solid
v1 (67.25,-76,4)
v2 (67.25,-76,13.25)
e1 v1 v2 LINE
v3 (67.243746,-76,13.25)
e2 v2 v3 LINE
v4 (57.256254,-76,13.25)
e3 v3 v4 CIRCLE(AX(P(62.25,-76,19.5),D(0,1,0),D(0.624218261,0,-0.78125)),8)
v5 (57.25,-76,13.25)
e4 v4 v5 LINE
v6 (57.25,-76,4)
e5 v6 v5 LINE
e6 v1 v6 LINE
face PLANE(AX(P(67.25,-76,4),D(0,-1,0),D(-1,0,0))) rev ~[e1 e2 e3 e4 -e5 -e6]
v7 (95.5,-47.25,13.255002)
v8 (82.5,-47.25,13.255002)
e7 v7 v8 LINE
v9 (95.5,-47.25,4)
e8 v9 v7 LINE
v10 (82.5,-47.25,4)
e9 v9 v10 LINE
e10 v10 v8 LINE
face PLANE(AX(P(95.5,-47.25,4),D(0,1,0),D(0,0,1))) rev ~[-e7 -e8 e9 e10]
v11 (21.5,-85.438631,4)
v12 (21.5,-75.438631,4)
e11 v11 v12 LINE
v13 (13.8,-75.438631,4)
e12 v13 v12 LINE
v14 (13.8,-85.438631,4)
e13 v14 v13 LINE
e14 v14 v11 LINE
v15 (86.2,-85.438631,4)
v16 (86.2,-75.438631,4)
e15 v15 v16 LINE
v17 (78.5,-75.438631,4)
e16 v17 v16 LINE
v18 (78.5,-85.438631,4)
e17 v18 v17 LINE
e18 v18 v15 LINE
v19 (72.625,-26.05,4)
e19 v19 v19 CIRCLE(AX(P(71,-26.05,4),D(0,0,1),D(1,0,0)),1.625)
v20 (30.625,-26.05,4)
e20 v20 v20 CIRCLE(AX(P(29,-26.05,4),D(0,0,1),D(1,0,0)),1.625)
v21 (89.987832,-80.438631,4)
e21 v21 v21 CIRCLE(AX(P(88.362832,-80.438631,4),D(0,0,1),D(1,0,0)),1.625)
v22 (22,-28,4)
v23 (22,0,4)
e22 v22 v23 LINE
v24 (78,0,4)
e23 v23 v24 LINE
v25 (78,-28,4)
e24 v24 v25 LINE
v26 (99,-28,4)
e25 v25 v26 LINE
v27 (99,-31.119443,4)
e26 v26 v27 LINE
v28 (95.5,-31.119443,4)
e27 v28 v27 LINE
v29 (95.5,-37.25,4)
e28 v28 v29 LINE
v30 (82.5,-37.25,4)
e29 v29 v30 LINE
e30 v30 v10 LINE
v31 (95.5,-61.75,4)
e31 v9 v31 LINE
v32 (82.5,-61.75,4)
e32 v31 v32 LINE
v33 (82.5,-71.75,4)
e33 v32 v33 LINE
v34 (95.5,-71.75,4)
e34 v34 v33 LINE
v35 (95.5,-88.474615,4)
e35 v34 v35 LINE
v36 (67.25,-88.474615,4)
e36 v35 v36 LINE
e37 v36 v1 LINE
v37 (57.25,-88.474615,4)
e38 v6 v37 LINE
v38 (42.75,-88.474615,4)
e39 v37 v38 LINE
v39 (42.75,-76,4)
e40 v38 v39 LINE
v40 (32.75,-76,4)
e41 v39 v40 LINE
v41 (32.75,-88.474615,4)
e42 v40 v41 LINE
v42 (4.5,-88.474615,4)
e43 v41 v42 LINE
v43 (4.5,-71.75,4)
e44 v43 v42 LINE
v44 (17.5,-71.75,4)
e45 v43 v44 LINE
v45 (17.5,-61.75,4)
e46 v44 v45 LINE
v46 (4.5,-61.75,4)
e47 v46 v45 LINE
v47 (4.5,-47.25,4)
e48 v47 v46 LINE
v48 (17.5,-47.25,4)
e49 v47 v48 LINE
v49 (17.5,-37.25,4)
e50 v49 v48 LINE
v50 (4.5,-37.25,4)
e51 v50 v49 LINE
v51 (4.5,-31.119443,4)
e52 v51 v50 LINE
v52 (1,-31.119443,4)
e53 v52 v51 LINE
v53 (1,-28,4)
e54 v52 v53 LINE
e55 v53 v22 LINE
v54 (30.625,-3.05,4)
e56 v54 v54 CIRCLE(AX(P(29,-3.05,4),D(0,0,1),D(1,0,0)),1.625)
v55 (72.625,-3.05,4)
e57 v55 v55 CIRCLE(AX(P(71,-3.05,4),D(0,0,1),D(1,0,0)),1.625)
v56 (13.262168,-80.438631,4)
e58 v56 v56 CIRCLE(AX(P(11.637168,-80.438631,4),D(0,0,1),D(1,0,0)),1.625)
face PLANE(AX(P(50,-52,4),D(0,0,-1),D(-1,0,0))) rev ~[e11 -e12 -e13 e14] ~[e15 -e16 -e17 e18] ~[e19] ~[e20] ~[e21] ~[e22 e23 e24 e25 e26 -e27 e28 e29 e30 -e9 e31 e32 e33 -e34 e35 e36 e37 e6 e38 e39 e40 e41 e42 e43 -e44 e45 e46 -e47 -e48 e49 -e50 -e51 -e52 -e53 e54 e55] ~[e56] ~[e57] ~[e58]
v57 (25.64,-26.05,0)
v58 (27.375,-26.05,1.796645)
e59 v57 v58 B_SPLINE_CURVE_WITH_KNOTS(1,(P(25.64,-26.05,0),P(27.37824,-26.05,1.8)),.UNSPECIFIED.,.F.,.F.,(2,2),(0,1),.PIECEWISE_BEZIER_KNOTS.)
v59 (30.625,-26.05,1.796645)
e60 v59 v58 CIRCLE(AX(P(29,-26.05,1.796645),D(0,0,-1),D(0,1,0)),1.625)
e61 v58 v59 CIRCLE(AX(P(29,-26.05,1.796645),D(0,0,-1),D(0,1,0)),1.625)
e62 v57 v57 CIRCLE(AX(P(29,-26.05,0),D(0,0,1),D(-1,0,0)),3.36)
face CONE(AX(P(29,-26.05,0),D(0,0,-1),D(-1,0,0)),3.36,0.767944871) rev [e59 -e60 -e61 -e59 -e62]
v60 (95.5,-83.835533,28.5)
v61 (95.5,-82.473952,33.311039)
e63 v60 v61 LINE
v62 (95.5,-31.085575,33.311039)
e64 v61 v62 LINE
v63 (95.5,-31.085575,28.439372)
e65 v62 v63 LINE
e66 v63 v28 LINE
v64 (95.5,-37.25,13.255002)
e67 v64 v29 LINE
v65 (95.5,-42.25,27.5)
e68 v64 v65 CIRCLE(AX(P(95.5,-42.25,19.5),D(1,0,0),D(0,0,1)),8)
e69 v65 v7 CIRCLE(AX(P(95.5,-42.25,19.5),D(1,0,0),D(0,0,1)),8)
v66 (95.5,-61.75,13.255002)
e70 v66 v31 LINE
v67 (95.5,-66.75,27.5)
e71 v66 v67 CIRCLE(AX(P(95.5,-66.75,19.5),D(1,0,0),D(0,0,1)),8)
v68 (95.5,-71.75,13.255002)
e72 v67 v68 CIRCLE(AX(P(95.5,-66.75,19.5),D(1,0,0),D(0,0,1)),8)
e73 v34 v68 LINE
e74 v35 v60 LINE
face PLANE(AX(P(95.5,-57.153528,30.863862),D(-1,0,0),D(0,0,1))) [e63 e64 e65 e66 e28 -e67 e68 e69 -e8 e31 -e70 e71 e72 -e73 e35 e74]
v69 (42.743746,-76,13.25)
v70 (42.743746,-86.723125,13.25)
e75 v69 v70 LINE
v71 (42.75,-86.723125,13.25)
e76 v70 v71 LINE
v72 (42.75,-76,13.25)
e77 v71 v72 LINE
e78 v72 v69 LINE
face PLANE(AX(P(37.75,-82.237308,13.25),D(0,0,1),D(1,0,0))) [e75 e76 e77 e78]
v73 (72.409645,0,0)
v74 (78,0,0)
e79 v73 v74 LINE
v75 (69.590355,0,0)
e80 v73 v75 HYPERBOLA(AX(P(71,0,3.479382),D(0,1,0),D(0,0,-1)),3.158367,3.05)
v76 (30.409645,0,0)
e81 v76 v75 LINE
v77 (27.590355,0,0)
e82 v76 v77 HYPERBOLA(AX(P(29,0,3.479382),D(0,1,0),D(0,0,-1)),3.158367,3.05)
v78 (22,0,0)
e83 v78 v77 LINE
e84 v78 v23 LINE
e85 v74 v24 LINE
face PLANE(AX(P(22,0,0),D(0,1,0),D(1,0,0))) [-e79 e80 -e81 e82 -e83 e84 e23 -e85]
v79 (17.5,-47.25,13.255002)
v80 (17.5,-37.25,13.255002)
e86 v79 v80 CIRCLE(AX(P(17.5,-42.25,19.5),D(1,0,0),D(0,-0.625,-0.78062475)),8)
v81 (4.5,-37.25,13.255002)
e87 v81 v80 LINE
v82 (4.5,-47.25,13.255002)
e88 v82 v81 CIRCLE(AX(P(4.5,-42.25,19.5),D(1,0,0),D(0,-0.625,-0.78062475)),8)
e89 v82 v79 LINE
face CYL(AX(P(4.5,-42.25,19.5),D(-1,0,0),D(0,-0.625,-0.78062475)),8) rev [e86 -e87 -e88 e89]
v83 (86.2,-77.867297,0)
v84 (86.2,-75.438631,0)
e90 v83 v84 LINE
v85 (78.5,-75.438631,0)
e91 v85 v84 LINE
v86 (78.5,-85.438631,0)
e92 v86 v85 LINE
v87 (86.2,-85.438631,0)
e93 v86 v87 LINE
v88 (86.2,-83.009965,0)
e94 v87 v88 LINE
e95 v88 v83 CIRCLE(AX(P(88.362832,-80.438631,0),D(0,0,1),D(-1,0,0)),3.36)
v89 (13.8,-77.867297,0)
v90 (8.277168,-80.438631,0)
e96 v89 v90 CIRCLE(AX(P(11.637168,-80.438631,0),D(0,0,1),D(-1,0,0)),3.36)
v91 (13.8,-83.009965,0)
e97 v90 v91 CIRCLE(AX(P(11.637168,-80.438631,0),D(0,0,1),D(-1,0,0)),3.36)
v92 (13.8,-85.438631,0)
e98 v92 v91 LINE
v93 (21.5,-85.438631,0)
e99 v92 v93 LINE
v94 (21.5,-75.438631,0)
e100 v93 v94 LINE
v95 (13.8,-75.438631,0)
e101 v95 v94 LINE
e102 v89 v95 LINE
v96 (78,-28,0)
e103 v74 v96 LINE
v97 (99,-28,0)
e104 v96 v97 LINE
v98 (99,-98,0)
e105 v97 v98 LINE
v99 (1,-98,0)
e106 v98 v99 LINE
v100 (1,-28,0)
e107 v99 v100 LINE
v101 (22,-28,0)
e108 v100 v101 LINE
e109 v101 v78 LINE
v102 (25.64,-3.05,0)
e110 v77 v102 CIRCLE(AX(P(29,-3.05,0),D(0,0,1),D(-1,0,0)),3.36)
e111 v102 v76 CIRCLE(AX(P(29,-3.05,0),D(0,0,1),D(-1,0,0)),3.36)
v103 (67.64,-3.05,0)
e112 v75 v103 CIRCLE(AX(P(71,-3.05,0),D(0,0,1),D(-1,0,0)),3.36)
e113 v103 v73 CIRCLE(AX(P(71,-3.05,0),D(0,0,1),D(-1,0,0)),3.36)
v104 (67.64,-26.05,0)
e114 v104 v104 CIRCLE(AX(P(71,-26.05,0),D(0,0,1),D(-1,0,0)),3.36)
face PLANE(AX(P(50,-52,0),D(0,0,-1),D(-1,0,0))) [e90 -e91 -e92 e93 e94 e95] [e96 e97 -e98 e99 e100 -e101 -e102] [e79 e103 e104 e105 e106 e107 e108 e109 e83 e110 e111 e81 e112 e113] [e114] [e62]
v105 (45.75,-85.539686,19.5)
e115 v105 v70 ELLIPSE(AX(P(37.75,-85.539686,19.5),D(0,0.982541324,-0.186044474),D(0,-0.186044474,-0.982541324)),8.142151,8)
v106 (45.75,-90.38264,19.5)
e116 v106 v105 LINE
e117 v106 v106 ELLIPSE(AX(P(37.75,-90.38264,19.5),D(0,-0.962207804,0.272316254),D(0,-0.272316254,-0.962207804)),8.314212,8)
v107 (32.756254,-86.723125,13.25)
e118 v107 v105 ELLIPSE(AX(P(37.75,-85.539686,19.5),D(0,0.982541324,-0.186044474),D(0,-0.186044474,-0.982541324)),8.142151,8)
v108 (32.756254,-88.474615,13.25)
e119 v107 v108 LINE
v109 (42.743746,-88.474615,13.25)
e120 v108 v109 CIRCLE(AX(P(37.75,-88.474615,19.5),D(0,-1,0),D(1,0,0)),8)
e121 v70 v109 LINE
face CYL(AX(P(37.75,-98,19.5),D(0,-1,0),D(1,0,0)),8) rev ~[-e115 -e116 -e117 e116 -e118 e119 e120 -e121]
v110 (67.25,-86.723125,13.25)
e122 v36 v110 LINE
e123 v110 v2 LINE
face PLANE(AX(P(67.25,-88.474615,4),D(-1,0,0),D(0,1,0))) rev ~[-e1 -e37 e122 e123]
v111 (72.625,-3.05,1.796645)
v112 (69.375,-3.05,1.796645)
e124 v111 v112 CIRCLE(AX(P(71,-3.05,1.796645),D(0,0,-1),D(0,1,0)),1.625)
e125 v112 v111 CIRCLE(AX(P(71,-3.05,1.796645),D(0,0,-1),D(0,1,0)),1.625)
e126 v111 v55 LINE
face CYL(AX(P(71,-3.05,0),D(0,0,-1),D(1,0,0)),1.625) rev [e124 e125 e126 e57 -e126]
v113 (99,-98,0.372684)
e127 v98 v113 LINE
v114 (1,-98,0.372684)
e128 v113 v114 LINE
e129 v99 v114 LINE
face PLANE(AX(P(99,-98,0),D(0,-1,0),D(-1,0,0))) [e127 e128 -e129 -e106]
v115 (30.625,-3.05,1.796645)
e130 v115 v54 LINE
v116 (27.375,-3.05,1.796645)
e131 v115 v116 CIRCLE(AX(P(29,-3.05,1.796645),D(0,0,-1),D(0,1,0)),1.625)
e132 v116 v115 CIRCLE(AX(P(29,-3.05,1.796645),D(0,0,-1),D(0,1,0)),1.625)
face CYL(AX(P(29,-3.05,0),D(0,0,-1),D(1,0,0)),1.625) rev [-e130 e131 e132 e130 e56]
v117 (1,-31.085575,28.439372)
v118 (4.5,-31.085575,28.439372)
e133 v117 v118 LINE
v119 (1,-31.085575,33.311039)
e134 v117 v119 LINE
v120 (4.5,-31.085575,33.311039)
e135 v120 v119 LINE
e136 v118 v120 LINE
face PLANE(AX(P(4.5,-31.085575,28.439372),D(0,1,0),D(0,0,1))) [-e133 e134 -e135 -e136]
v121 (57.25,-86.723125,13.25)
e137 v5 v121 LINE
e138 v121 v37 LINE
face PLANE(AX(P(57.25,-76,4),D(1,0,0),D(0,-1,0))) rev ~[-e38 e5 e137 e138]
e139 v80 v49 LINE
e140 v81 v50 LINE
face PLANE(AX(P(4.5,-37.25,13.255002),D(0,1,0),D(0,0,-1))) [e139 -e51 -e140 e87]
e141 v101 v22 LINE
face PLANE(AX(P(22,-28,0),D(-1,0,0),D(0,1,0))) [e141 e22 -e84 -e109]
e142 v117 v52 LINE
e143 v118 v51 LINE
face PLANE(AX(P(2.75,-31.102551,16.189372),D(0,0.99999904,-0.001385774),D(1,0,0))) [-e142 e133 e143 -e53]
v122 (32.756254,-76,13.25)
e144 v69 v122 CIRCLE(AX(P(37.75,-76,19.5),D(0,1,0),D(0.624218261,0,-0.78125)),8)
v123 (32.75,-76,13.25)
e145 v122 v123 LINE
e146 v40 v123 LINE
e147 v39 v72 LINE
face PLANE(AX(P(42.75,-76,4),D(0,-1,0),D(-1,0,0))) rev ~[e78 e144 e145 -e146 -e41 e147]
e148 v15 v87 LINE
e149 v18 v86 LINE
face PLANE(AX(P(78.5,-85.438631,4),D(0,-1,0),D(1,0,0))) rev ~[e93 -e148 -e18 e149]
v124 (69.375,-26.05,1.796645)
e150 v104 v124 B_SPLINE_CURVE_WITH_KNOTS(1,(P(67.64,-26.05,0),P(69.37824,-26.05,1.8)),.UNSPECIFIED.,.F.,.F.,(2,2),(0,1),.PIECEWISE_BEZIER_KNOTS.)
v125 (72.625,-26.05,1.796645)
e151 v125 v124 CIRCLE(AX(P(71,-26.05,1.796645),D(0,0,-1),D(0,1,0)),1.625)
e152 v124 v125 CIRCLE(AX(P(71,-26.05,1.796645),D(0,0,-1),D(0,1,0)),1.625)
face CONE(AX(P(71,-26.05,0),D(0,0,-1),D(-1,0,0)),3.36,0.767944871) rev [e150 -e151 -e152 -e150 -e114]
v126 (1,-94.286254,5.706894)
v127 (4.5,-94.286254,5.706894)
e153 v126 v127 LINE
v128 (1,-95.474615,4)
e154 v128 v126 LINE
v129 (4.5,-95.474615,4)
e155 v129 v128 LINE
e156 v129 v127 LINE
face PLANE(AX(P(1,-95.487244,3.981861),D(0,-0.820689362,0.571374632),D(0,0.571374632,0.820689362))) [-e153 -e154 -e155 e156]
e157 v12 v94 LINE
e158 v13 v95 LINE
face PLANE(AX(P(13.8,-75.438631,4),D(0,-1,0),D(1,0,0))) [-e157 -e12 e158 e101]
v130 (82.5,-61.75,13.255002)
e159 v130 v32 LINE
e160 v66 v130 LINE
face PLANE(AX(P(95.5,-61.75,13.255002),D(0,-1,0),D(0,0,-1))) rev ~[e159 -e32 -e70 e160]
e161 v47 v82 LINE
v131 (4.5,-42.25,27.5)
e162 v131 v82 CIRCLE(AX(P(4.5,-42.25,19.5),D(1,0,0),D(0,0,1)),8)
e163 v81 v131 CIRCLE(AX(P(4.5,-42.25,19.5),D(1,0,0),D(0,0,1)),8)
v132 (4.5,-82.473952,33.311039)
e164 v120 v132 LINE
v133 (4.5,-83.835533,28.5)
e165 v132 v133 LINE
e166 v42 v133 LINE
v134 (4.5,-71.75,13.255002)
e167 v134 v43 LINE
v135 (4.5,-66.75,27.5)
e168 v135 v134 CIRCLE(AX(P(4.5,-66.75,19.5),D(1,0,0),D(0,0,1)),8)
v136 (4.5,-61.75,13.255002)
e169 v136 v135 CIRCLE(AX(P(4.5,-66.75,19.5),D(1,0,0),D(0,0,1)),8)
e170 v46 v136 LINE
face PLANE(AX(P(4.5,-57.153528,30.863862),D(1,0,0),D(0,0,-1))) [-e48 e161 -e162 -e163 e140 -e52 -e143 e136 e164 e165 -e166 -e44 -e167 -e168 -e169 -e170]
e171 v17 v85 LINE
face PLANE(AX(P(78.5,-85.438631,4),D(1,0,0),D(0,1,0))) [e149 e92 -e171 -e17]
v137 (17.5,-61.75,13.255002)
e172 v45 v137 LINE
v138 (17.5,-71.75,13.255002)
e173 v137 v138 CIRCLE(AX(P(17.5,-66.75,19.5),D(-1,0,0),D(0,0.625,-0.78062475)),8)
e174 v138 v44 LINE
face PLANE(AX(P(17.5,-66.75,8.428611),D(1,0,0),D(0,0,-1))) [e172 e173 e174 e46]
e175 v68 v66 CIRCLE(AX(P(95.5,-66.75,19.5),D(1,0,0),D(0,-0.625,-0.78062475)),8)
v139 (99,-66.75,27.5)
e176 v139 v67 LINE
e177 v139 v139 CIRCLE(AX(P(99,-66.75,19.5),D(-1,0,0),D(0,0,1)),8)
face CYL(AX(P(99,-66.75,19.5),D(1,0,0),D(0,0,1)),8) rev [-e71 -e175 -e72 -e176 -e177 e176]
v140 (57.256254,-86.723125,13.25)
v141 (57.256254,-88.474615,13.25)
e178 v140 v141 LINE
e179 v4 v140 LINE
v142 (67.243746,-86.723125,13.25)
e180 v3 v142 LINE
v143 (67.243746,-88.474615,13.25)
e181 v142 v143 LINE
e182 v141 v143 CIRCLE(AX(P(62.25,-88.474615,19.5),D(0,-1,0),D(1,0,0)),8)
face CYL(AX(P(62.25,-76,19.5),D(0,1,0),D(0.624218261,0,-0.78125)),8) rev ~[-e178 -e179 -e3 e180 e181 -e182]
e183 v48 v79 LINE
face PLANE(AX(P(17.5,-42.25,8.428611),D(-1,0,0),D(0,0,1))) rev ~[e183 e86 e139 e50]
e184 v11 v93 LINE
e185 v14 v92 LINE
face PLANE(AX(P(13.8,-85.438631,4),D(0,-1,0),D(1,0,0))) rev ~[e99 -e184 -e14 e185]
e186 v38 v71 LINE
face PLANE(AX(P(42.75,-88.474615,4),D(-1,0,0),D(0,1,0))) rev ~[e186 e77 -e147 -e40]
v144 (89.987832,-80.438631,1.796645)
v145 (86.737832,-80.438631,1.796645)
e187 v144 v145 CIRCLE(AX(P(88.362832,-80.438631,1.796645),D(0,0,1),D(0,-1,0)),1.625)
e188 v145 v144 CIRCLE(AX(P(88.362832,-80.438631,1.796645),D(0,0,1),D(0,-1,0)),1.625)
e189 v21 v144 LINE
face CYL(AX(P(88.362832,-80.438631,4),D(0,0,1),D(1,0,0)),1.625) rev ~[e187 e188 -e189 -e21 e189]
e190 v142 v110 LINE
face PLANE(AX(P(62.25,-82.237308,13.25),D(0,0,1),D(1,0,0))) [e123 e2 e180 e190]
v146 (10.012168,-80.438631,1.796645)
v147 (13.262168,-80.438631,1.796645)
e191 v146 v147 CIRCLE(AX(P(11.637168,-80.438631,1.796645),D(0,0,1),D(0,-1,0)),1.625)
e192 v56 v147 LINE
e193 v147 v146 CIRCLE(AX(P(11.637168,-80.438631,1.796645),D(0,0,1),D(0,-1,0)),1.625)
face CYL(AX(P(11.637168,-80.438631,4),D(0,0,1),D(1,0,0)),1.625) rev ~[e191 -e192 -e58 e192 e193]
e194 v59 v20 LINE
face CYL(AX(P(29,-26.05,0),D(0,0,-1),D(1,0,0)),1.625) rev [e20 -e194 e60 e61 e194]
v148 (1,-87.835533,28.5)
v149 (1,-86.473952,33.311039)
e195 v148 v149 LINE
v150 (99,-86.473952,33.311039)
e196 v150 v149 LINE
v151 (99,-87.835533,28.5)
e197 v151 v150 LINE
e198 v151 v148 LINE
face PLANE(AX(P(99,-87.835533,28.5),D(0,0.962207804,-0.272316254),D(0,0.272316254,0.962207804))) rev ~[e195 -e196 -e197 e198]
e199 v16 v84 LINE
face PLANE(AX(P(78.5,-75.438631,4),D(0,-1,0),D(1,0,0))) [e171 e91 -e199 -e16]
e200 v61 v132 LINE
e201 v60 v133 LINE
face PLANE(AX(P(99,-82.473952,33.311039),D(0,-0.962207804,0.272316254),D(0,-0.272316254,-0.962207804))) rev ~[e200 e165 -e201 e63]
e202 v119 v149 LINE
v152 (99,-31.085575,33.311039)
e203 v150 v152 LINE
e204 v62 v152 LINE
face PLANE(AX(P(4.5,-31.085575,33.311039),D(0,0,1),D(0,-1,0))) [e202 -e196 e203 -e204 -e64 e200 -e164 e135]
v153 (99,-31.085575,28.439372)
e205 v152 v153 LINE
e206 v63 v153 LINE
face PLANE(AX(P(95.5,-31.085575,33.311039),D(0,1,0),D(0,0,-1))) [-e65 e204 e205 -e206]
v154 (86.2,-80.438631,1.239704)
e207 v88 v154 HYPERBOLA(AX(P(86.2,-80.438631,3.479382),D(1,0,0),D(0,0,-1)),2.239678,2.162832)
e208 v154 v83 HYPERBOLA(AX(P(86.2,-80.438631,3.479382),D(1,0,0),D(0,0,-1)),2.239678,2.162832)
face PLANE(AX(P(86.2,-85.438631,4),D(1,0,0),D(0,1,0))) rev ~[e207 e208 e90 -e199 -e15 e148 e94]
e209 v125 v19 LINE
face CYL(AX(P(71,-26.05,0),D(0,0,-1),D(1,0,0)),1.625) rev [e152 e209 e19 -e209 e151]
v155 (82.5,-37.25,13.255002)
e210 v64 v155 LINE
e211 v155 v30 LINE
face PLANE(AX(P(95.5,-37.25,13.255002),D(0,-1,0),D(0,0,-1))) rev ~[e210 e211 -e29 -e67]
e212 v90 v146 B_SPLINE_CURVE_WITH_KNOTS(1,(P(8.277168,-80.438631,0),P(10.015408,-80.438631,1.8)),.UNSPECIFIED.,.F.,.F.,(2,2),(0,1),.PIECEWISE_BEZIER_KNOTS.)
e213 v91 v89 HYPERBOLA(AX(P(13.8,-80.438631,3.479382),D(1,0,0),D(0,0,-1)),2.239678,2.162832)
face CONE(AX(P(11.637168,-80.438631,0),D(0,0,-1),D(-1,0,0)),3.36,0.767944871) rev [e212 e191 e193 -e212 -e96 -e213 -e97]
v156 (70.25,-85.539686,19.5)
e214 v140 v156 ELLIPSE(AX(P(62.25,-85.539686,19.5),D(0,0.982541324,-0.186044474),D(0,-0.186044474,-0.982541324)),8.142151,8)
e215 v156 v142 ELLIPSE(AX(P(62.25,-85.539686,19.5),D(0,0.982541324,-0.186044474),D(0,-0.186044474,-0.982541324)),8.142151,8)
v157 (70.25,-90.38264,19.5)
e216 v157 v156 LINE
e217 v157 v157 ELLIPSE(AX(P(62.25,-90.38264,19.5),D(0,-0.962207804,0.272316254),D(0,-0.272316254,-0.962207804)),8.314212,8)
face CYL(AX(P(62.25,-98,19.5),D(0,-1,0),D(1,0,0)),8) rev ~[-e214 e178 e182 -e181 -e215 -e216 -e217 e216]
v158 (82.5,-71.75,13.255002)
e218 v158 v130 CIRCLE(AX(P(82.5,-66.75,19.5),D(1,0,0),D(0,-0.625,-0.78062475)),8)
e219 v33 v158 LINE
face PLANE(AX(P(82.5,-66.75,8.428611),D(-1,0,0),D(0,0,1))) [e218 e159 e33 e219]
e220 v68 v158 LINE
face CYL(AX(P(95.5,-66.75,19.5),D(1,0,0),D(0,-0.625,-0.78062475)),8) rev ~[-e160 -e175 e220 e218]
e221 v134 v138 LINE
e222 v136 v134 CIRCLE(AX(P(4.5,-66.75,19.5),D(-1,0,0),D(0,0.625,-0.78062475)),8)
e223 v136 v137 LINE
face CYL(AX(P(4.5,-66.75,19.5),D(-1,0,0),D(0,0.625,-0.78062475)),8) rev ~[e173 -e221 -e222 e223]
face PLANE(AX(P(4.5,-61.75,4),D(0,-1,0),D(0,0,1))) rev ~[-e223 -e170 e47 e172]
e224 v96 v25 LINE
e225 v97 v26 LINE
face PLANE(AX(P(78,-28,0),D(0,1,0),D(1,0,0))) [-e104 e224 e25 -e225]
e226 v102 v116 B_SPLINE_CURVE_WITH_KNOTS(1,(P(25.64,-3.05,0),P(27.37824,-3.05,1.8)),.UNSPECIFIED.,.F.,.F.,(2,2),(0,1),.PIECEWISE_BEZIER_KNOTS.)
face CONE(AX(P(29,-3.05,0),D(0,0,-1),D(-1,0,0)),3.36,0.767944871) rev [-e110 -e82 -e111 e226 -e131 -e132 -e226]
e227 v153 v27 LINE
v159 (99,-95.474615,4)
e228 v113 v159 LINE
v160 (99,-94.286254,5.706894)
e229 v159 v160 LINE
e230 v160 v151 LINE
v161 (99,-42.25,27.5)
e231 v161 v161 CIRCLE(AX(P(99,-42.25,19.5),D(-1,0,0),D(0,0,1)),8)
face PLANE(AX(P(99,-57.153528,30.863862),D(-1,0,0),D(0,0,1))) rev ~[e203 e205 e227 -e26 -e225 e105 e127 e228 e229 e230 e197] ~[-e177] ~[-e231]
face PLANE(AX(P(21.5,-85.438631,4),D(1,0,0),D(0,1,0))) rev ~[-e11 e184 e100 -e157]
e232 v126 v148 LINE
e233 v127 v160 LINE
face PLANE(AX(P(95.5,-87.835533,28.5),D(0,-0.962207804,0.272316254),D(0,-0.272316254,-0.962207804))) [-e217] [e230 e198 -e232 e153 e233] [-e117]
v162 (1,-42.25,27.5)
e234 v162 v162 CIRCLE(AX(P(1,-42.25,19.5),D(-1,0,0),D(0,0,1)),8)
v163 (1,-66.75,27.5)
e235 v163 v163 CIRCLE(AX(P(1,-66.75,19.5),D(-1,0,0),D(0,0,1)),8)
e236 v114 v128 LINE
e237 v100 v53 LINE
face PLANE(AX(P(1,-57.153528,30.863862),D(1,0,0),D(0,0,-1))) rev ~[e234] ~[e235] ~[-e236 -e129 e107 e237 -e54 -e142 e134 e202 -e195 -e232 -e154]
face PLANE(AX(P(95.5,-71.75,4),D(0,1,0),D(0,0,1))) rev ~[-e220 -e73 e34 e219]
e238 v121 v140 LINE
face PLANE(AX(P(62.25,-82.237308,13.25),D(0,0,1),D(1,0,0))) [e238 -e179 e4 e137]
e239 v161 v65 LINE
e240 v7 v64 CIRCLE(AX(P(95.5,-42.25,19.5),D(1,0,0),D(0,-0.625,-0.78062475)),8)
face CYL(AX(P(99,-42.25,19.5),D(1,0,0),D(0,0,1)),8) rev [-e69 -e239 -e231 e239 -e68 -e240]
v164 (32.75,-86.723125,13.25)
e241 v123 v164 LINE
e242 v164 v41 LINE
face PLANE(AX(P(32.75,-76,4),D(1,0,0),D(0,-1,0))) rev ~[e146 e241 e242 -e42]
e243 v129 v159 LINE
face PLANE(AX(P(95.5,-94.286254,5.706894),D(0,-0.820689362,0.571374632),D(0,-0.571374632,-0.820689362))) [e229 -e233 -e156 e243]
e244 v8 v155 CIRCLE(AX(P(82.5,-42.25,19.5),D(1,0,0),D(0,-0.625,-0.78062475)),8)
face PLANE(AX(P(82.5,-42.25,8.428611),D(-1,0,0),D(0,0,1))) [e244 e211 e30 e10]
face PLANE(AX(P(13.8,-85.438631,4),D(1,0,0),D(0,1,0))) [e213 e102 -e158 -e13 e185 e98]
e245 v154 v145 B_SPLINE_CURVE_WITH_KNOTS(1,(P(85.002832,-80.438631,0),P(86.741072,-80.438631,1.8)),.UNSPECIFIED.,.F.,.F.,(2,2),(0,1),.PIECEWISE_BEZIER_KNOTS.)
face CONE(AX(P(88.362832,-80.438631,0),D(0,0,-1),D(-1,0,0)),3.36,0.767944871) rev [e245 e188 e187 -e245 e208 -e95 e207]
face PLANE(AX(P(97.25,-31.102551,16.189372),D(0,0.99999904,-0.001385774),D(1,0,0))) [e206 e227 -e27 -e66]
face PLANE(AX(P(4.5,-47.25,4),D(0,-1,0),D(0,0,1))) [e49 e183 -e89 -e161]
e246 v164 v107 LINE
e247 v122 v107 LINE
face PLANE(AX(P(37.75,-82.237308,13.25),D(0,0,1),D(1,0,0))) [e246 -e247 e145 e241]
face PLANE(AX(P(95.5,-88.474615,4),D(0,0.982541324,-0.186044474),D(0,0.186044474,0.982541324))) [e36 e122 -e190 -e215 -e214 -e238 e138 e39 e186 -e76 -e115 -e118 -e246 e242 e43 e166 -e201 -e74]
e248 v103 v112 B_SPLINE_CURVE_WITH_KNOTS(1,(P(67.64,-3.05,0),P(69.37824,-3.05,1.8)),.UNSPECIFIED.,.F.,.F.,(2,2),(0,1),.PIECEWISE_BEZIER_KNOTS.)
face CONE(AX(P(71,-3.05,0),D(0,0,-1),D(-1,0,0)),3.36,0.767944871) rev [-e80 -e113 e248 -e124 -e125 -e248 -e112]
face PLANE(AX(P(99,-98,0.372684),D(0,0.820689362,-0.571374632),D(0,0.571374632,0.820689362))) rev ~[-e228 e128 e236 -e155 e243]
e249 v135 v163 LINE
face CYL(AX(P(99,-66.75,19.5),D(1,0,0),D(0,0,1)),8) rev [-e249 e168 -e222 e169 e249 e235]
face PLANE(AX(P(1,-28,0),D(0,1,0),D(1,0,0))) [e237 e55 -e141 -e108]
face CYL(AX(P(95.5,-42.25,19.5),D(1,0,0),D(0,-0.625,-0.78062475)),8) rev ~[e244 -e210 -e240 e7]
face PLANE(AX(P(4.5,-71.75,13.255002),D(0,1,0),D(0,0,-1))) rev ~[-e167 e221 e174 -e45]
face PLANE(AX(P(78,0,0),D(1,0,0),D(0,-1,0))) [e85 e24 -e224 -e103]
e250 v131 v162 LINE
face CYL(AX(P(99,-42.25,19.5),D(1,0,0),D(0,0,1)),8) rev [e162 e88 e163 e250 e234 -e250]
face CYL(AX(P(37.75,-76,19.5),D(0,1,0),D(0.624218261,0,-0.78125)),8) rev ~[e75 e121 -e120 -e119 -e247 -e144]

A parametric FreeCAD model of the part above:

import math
import FreeCAD as App
import Part
import Sketcher
from FreeCAD import Vector
Q = App.Units.Quantity


def add_polygon(sketch, points):
    """Adds a closed chain of lines whose ends are joined by coincident constraints."""
    first, n = sketch.GeometryCount, len(points)
    for a, b in zip(points, points[1:] + points[:1]):
        sketch.addGeometry(Part.LineSegment(App.Vector(*a, 0), App.Vector(*b, 0)), False)
    for i in range(n):
        sketch.addConstraint(Sketcher.Constraint("Coincident", first + i, 2, first + (i + 1) % n, 1))

doc = App.newDocument("Part")
body = doc.addObject("PartDesign::Body", "Body")

sketch1 = body.newObject("Sketcher::SketchObject", "Sketch")
sketch1.AttachmentSupport = (doc.getObject("XY_Plane"), [""])
sketch1.MapMode = "FlatFace"
add_polygon(sketch1, [(99, -98), (99, -28), (78, -28), (78, 0), (22, 0), (22, -28), (1, -28), (1, -98)])
sketch1.addGeometry(Part.Circle(Vector(71, -26.05, 0), Vector(0, 0, 1), 1.625), False)
sketch1.addGeometry(Part.Circle(Vector(29, -26.05, 0), Vector(0, 0, 1), 1.625), False)
sketch1.addGeometry(Part.Circle(Vector(71, -3.05, 0), Vector(0, 0, 1), 1.625), False)
sketch1.addGeometry(Part.Circle(Vector(29, -3.05, 0), Vector(0, 0, 1), 1.625), False)
sketch1.addConstraint(Sketcher.Constraint("Vertical", 0))
sketch1.addConstraint(Sketcher.Constraint("Horizontal", 1))
sketch1.addConstraint(Sketcher.Constraint("Vertical", 2))
sketch1.addConstraint(Sketcher.Constraint("Horizontal", 3))
sketch1.addConstraint(Sketcher.Constraint("Vertical", 4))
sketch1.addConstraint(Sketcher.Constraint("Horizontal", 5))
sketch1.addConstraint(Sketcher.Constraint("Vertical", 6))
sketch1.addConstraint(Sketcher.Constraint("Horizontal", 7))
sketch1.addConstraint(Sketcher.Constraint("Equal", 8, 9))
sketch1.addConstraint(Sketcher.Constraint("Equal", 9, 10))
sketch1.addConstraint(Sketcher.Constraint("Equal", 10, 11))
sketch1.addConstraint(Sketcher.Constraint("PointOnObject", 2, 2, -1))
sketch1.addConstraint(Sketcher.Constraint("Horizontal", 8, 3, 9, 3))
sketch1.addConstraint(Sketcher.Constraint("Horizontal", 10, 3, 11, 3))
sketch1.addConstraint(Sketcher.Constraint("Horizontal", 1, 2, 4, 2))
sketch1.addConstraint(Sketcher.Constraint("Vertical", 8, 3, 10, 3))
sketch1.addConstraint(Sketcher.Constraint("Vertical", 9, 3, 11, 3))
sketch1.addConstraint(Sketcher.Constraint("Equal", 1, 5))
sketch1.addConstraint(Sketcher.Constraint("Diameter", 8, Q("3.25 mm")))
sketch1.addConstraint(Sketcher.Constraint("DistanceX", 1, 2, 1, 1, Q("21 mm")))
sketch1.addConstraint(Sketcher.Constraint("DistanceX", 3, 2, 3, 1, Q("56 mm")))
sketch1.addConstraint(Sketcher.Constraint("DistanceY", 0, 1, 0, 2, Q("70 mm")))
sketch1.addConstraint(Sketcher.Constraint("DistanceY", 2, 1, 2, 2, Q("28 mm")))
sketch1.addConstraint(Sketcher.Constraint("DistanceX", -1, 1, 8, 3, Q("71 mm")))
sketch1.addConstraint(Sketcher.Constraint("DistanceX", -1, 1, 9, 3, Q("29 mm")))
sketch1.addConstraint(Sketcher.Constraint("DistanceX", -1, 1, 0, 2, Q("99 mm")))
sketch1.addConstraint(Sketcher.Constraint("DistanceY", 8, 3, 10, 3, Q("23 mm")))
sketch1.addConstraint(Sketcher.Constraint("DistanceY", 8, 3, -1, 1, Q("26.05 mm")))
pad1 = body.newObject("PartDesign::Pad", "Pad")
pad1.Profile = sketch1
pad1.Length = 4

sketch2 = body.newObject("Sketcher::SketchObject", "Sketch001")
sketch2.AttachmentSupport = (doc.getObject("YZ_Plane"), [""])
sketch2.MapMode = "FlatFace"
sketch2.AttachmentOffset = App.Placement(Vector(0, 0, 1), App.Rotation())
add_polygon(sketch2, [(-74.869485, 4), (-95.487244, 3.981861), (-94.286254, 5.706894), (-87.835533, 28.5), (-74.835533, 28.5)])
sketch2.addConstraint(Sketcher.Constraint("Horizontal", 3))
sketch2.addConstraint(Sketcher.Constraint("DistanceX", 3, 1, 3, 2, Q("13 mm")))
sketch2.addConstraint(Sketcher.Constraint("DistanceY", -1, 1, 4, 2, Q("4 mm")))
sketch2.addConstraint(Sketcher.Constraint("DistanceY", -1, 1, 2, 2, Q("28.5 mm")))
sketch2.addConstraint(Sketcher.Constraint("Distance", 1, Q("2.101931 mm")))
sketch2.addConstraint(Sketcher.Constraint("Distance", 2, Q("23.688341 mm")))
sketch2.addConstraint(Sketcher.Constraint("DistanceY", -1, 1, 0, 2, Q("3.981861 mm")))
sketch2.addConstraint(Sketcher.Constraint("DistanceX", 0, 2, 1, 2, Q("1.20099 mm")))
sketch2.addConstraint(Sketcher.Constraint("DistanceX", 1, 2, 4, 2, Q("19.416769 mm")))
sketch2.addConstraint(Sketcher.Constraint("DistanceX", 0, 2, -1, 1, Q("95.487244 mm")))
pad2 = body.newObject("PartDesign::Pad", "Pad001")
pad2.Profile = sketch2
pad2.Length = 3.5

sketch3 = body.newObject("Sketcher::SketchObject", "Sketch002")
sketch3.AttachmentSupport = (doc.getObject("YZ_Plane"), [""])
sketch3.MapMode = "FlatFace"
sketch3.AttachmentOffset = App.Placement(Vector(0, 0, 99), App.Rotation())
add_polygon(sketch3, [(-98, 0.372684), (-98, 4), (-95.474615, 4)])
sketch3.addConstraint(Sketcher.Constraint("Vertical", 0))
sketch3.addConstraint(Sketcher.Constraint("Horizontal", 1))
sketch3.addConstraint(Sketcher.Constraint("DistanceX", 0, 2, -1, 1, Q("98 mm")))
sketch3.addConstraint(Sketcher.Constraint("DistanceY", -1, 1, 0, 2, Q("4 mm")))
sketch3.addConstraint(Sketcher.Constraint("Distance", 2, Q("4.41984 mm")))
sketch3.addConstraint(Sketcher.Constraint("DistanceX", 1, 1, 1, 2, Q("2.525385 mm")))
pocket1 = body.newObject("PartDesign::Pocket", "Pocket")
pocket1.Profile = sketch3
pocket1.Length = 98

sketch4 = body.newObject("Sketcher::SketchObject", "Sketch003")
sketch4.AttachmentSupport = (doc.getObject("YZ_Plane"), [""])
sketch4.MapMode = "FlatFace"
sketch4.AttachmentOffset = App.Placement(Vector(0, 0, 99), App.Rotation())
add_polygon(sketch4, [(-94.286254, 5.706894), (-95.474615, 4), (-74.869485, 4), (-74.835533, 28.5), (-87.835533, 28.5)])
sketch4.addConstraint(Sketcher.Constraint("Horizontal", 1))
sketch4.addConstraint(Sketcher.Constraint("Horizontal", 3))
sketch4.addConstraint(Sketcher.Constraint("DistanceX", 3, 2, 3, 1, Q("13 mm")))
sketch4.addConstraint(Sketcher.Constraint("DistanceY", -1, 1, 0, 2, Q("4 mm")))
sketch4.addConstraint(Sketcher.Constraint("DistanceY", -1, 1, 2, 2, Q("28.5 mm")))
sketch4.addConstraint(Sketcher.Constraint("DistanceX", 1, 1, 1, 2, Q("20.60513 mm")))
sketch4.addConstraint(Sketcher.Constraint("Distance", 0, Q("2.079829 mm")))
sketch4.addConstraint(Sketcher.Constraint("Distance", 4, Q("23.688341 mm")))
sketch4.addConstraint(Sketcher.Constraint("DistanceX", 1, 2, 2, 2, Q("0.033951 mm")))
sketch4.addConstraint(Sketcher.Constraint("DistanceX", 0, 2, -1, 1, Q("95.474615 mm")))
pad3 = body.newObject("PartDesign::Pad", "Pad002")
pad3.Profile = sketch4
pad3.Length = 3.5
pad3.Reversed = True

sketch5 = body.newObject("Sketcher::SketchObject", "Sketch004")
sketch5.Placement = App.Placement(Vector(0, -74.874884, 0.10376), App.Rotation(Vector(1, 0, 0), Vector(0, -0.001385774, -0.99999904), Vector(0, 0.99999904, -0.001385774), "ZXY"))
add_polygon(sketch5, [(95.5, -3.896244), (95.5, -28.396268), (99, -28.396268), (99, -3.896244)])
add_polygon(sketch5, [(1, -3.896244), (1, -28.396268), (4.5, -28.396268), (4.5, -3.896244)])
sketch5.addConstraint(Sketcher.Constraint("Vertical", 0))
sketch5.addConstraint(Sketcher.Constraint("Horizontal", 1))
sketch5.addConstraint(Sketcher.Constraint("Vertical", 2))
sketch5.addConstraint(Sketcher.Constraint("Horizontal", 3))
sketch5.addConstraint(Sketcher.Constraint("Vertical", 4))
sketch5.addConstraint(Sketcher.Constraint("Horizontal", 5))
sketch5.addConstraint(Sketcher.Constraint("Vertical", 6))
sketch5.addConstraint(Sketcher.Constraint("Horizontal", 7))
sketch5.addConstraint(Sketcher.Constraint("Horizontal", 1, 2, 4, 2))
sketch5.addConstraint(Sketcher.Constraint("Horizontal", 3, 2, 6, 2))
sketch5.addConstraint(Sketcher.Constraint("Equal", 3, 5))
sketch5.addConstraint(Sketcher.Constraint("DistanceX", 1, 1, 1, 2, Q("3.5 mm")))
sketch5.addConstraint(Sketcher.Constraint("DistanceX", -1, 1, 1, 2, Q("99 mm")))
sketch5.addConstraint(Sketcher.Constraint("DistanceX", -1, 1, 4, 2, Q("1 mm")))
sketch5.addConstraint(Sketcher.Constraint("DistanceY", 0, 2, 0, 1, Q("24.500024 mm")))
sketch5.addConstraint(Sketcher.Constraint("DistanceY", 0, 2, -1, 1, Q("28.396268 mm")))
pad4 = body.newObject("PartDesign::Pad", "Pad003")
pad4.Profile = sketch5
pad4.Length = 43.75

sketch6 = body.newObject("Sketcher::SketchObject", "Sketch005")
sketch6.AttachmentSupport = (doc.getObject("YZ_Plane"), [""])
sketch6.MapMode = "FlatFace"
sketch6.AttachmentOffset = App.Placement(Vector(0, 0, 99), App.Rotation())
sketch6.addGeometry(Part.Circle(Vector(-42.25, 19.5, 0), Vector(0, 0, 1), 8), False)
sketch6.addGeometry(Part.Circle(Vector(-66.75, 19.5, 0), Vector(0, 0, 1), 8), False)
sketch6.addConstraint(Sketcher.Constraint("Equal", 0, 1))
sketch6.addConstraint(Sketcher.Constraint("Horizontal", 0, 3, 1, 3))
sketch6.addConstraint(Sketcher.Constraint("Diameter", 0, Q("16 mm")))
sketch6.addConstraint(Sketcher.Constraint("DistanceY", -1, 1, 0, 3, Q("19.5 mm")))
sketch6.addConstraint(Sketcher.Constraint("DistanceX", 1, 3, 0, 3, Q("24.5 mm")))
sketch6.addConstraint(Sketcher.Constraint("DistanceX", 0, 3, -1, 1, Q("42.25 mm")))
pocket2 = body.newObject("PartDesign::Pocket", "Pocket001")
pocket2.Profile = sketch6
pocket2.Length = 98

sketch7 = body.newObject("Sketcher::SketchObject", "Sketch006")
sketch7.AttachmentSupport = (doc.getObject("YZ_Plane"), [""])
sketch7.MapMode = "FlatFace"
sketch7.AttachmentOffset = App.Placement(Vector(0, 0, 95.5), App.Rotation())
add_polygon(sketch7, [(-94.286254, 5.706894), (-87.835533, 28.5), (-83.835533, 28.5), (-88.474615, 4), (-95.474615, 4)])
sketch7.addConstraint(Sketcher.Constraint("Horizontal", 1))
sketch7.addConstraint(Sketcher.Constraint("Horizontal", 3))
sketch7.addConstraint(Sketcher.Constraint("DistanceX", 1, 1, 1, 2, Q("4 mm")))
sketch7.addConstraint(Sketcher.Constraint("DistanceX", 3, 2, 3, 1, Q("7 mm")))
sketch7.addConstraint(Sketcher.Constraint("DistanceY", -1, 1, 2, 2, Q("4 mm")))
sketch7.addConstraint(Sketcher.Constraint("DistanceY", -1, 1, 0, 2, Q("28.5 mm")))
sketch7.addConstraint(Sketcher.Constraint("Distance", 0, Q("23.688341 mm")))
sketch7.addConstraint(Sketcher.Constraint("Distance", 4, Q("2.079829 mm")))
sketch7.addConstraint(Sketcher.Constraint("DistanceX", 2, 2, 0, 2, Q("0.639082 mm")))
sketch7.addConstraint(Sketcher.Constraint("DistanceX", 0, 2, -1, 1, Q("87.835533 mm")))
pad5 = body.newObject("PartDesign::Pad", "Pad004")
pad5.Profile = sketch7
pad5.Length = 91
pad5.Reversed = True

sketch8 = body.newObject("Sketcher::SketchObject", "Sketch007")
sketch8.AttachmentSupport = (doc.getObject("XZ_Plane"), [""])
sketch8.MapMode = "FlatFace"
sketch8.AttachmentOffset = App.Placement(Vector(0, 0, 98), App.Rotation())
sketch8.addGeometry(Part.Circle(Vector(37.75, 19.5, 0), Vector(0, 0, 1), 8), False)
sketch8.addGeometry(Part.Circle(Vector(62.25, 19.5, 0), Vector(0, 0, 1), 8), False)
sketch8.addConstraint(Sketcher.Constraint("Equal", 0, 1))
sketch8.addConstraint(Sketcher.Constraint("Horizontal", 0, 3, 1, 3))
sketch8.addConstraint(Sketcher.Constraint("Diameter", 0, Q("16 mm")))
sketch8.addConstraint(Sketcher.Constraint("DistanceY", -1, 1, 0, 3, Q("19.5 mm")))
sketch8.addConstraint(Sketcher.Constraint("DistanceX", 0, 3, 1, 3, Q("24.5 mm")))
sketch8.addConstraint(Sketcher.Constraint("DistanceX", -1, 1, 0, 3, Q("37.75 mm")))
pocket3 = body.newObject("PartDesign::Pocket", "Pocket002")
pocket3.Profile = sketch8
pocket3.Length = 70

sketch9 = body.newObject("Sketcher::SketchObject", "Sketch008")
sketch9.AttachmentSupport = (doc.getObject("YZ_Plane"), [""])
sketch9.MapMode = "FlatFace"
sketch9.AttachmentOffset = App.Placement(Vector(0, 0, 99), App.Rotation())
add_polygon(sketch9, [(-86.473952, 33.311039), (-87.835533, 28.5), (-83.835533, 28.5), (-82.473952, 33.311039)])
sketch9.addConstraint(Sketcher.Constraint("Horizontal", 1))
sketch9.addConstraint(Sketcher.Constraint("Horizontal", 3))
sketch9.addConstraint(Sketcher.Constraint("Parallel", 0, 2))
sketch9.addConstraint(Sketcher.Constraint("DistanceX", 1, 1, 1, 2, Q("4 mm")))
sketch9.addConstraint(Sketcher.Constraint("Distance", 0, Q("5 mm")))
sketch9.addConstraint(Sketcher.Constraint("DistanceY", -1, 1, 0, 2, Q("28.5 mm")))
sketch9.addConstraint(Sketcher.Constraint("DistanceY", -1, 1, 2, 2, Q("33.311039 mm")))
sketch9.addConstraint(Sketcher.Constraint("DistanceX", 0, 2, -1, 1, Q("87.835533 mm")))
pad6 = body.newObject("PartDesign::Pad", "Pad005")
pad6.Profile = sketch9
pad6.Length = 98
pad6.Reversed = True

sketch10 = body.newObject("Sketcher::SketchObject", "Sketch009")
sketch10.AttachmentSupport = (doc.getObject("YZ_Plane"), [""])
sketch10.MapMode = "FlatFace"
sketch10.AttachmentOffset = App.Placement(Vector(0, 0, 95.5), App.Rotation())
add_polygon(sketch10, [(-82.473952, 33.311039), (-83.835533, 28.5), (-74.835533, 28.5), (-31.085575, 28.439372), (-31.085575, 33.311039)])
sketch10.addConstraint(Sketcher.Constraint("Horizontal", 1))
sketch10.addConstraint(Sketcher.Constraint("Vertical", 3))
sketch10.addConstraint(Sketcher.Constraint("Horizontal", 4))
sketch10.addConstraint(Sketcher.Constraint("DistanceX", 1, 1, 1, 2, Q("9 mm")))
sketch10.addConstraint(Sketcher.Constraint("Distance", 0, Q("5 mm")))
sketch10.addConstraint(Sketcher.Constraint("DistanceY", -1, 1, 0, 2, Q("28.5 mm")))
sketch10.addConstraint(Sketcher.Constraint("Distance", 2, Q("43.75 mm")))
sketch10.addConstraint(Sketcher.Constraint("DistanceX", 4, 2, 4, 1, Q("51.388377 mm")))
sketch10.addConstraint(Sketcher.Constraint("DistanceY", 3, 1, 3, 2, Q("4.871667 mm")))
sketch10.addConstraint(Sketcher.Constraint("DistanceX", 0, 2, -1, 1, Q("83.835533 mm")))
pad7 = body.newObject("PartDesign::Pad", "Pad006")
pad7.Profile = sketch10
pad7.Length = 3.5

sketch11 = body.newObject("Sketcher::SketchObject", "Sketch010")
sketch11.AttachmentSupport = (doc.getObject("YZ_Plane"), [""])
sketch11.MapMode = "FlatFace"
sketch11.AttachmentOffset = App.Placement(Vector(0, 0, 4.5), App.Rotation())
add_polygon(sketch11, [(-31.085575, 33.311039), (-31.085575, 28.439372), (-74.835533, 28.5), (-83.835533, 28.5), (-82.473952, 33.311039)])
sketch11.addConstraint(Sketcher.Constraint("Vertical", 0))
sketch11.addConstraint(Sketcher.Constraint("Horizontal", 2))
sketch11.addConstraint(Sketcher.Constraint("Horizontal", 4))
sketch11.addConstraint(Sketcher.Constraint("DistanceX", 2, 2, 2, 1, Q("9 mm")))
sketch11.addConstraint(Sketcher.Constraint("Distance", 3, Q("5 mm")))
sketch11.addConstraint(Sketcher.Constraint("DistanceY", -1, 1, 1, 2, Q("28.5 mm")))
sketch11.addConstraint(Sketcher.Constraint("Distance", 1, Q("43.75 mm")))
sketch11.addConstraint(Sketcher.Constraint("DistanceX", 4, 1, 4, 2, Q("51.388377 mm")))
sketch11.addConstraint(Sketcher.Constraint("DistanceY", 0, 2, 0, 1, Q("4.871667 mm")))
sketch11.addConstraint(Sketcher.Constraint("DistanceX", 0, 2, -1, 1, Q("31.085575 mm")))
pad8 = body.newObject("PartDesign::Pad", "Pad007")
pad8.Profile = sketch11
pad8.Length = 3.5
pad8.Reversed = True

sketch12 = body.newObject("Sketcher::SketchObject", "Sketch011")
sketch12.AttachmentSupport = (doc.getObject("XY_Plane"), [""])
sketch12.MapMode = "FlatFace"
sketch12.AttachmentOffset = App.Placement(Vector(0, 0, 4), App.Rotation())
sketch12.addGeometry(Part.Circle(Vector(88.362832, -80.438631, 0), Vector(0, 0, 1), 1.625), False)
sketch12.addGeometry(Part.Circle(Vector(11.637168, -80.438631, 0), Vector(0, 0, 1), 1.625), False)
add_polygon(sketch12, [(78.5, -75.438631), (78.5, -85.438631), (86.2, -85.438631), (86.2, -75.438631)])
add_polygon(sketch12, [(13.8, -75.438631), (13.8, -85.438631), (21.5, -85.438631), (21.5, -75.438631)])
sketch12.addConstraint(Sketcher.Constraint("Vertical", 2))
sketch12.addConstraint(Sketcher.Constraint("Horizontal", 3))
sketch12.addConstraint(Sketcher.Constraint("Vertical", 4))
sketch12.addConstraint(Sketcher.Constraint("Horizontal", 5))
sketch12.addConstraint(Sketcher.Constraint("Vertical", 6))
sketch12.addConstraint(Sketcher.Constraint("Horizontal", 7))
sketch12.addConstraint(Sketcher.Constraint("Vertical", 8))
sketch12.addConstraint(Sketcher.Constraint("Horizontal", 9))
sketch12.addConstraint(Sketcher.Constraint("Equal", 0, 1))
sketch12.addConstraint(Sketcher.Constraint("Horizontal", 0, 3, 1, 3))
sketch12.addConstraint(Sketcher.Constraint("Horizontal", 3, 2, 6, 2))
sketch12.addConstraint(Sketcher.Constraint("Horizontal", 5, 2, 8, 2))
sketch12.addConstraint(Sketcher.Constraint("Equal", 5, 7))
sketch12.addConstraint(Sketcher.Constraint("Diameter", 0, Q("3.25 mm")))
sketch12.addConstraint(Sketcher.Constraint("DistanceY", 2, 2, 2, 1, Q("10 mm")))
sketch12.addConstraint(Sketcher.Constraint("DistanceX", 3, 1, 3, 2, Q("7.7 mm")))
sketch12.addConstraint(Sketcher.Constraint("DistanceY", 2, 2, 0, 3, Q("5 mm")))
sketch12.addConstraint(Sketcher.Constraint("DistanceX", 7, 2, 2, 2, Q("57 mm")))
sketch12.addConstraint(Sketcher.Constraint("DistanceX", -1, 1, 2, 2, Q("78.5 mm")))
sketch12.addConstraint(Sketcher.Constraint("DistanceX", -1, 1, 0, 3, Q("88.362832 mm")))
sketch12.addConstraint(Sketcher.Constraint("DistanceY", 0, 3, -1, 1, Q("80.438631 mm")))
sketch12.addConstraint(Sketcher.Constraint("DistanceX", -1, 1, 1, 3, Q("11.637168 mm")))
pocket4 = body.newObject("PartDesign::Pocket", "Pocket003")
pocket4.Profile = sketch12
pocket4.Length = 4

sketch13 = body.newObject("Sketcher::SketchObject", "Sketch012")
sketch13.AttachmentSupport = (doc.getObject("YZ_Plane"), [""])
sketch13.MapMode = "FlatFace"
sketch13.AttachmentOffset = App.Placement(Vector(0, 0, 4.5), App.Rotation())
sketch13.addGeometry(Part.LineSegment(Vector(-71.75, 13.255002, 0), Vector(-71.75, 4, 0)), False)
sketch13.addGeometry(Part.LineSegment(Vector(-71.75, 4, 0), Vector(-61.75, 4, 0)), False)
sketch13.addGeometry(Part.LineSegment(Vector(-61.75, 4, 0), Vector(-61.75, 13.255002, 0)), False)
sketch13.addGeometry(Part.ArcOfCircle(Part.Circle(Vector(-66.75, 19.5, 0), Vector(0, 0, 1), 8), math.radians(-128.682187), math.radians(-51.317813)), False)
sketch13.addGeometry(Part.LineSegment(Vector(-47.25, 13.255002, 0), Vector(-47.25, 4, 0)), False)
sketch13.addGeometry(Part.LineSegment(Vector(-47.25, 4, 0), Vector(-37.25, 4, 0)), False)
sketch13.addGeometry(Part.LineSegment(Vector(-37.25, 4, 0), Vector(-37.25, 13.255002, 0)), False)
sketch13.addGeometry(Part.ArcOfCircle(Part.Circle(Vector(-42.25, 19.5, 0), Vector(0, 0, 1), 8), math.radians(-128.682187), math.radians(-51.317813)), False)
sketch13.addConstraint(Sketcher.Constraint("Coincident", 0, 2, 1, 1))
sketch13.addConstraint(Sketcher.Constraint("Coincident", 1, 2, 2, 1))
sketch13.addConstraint(Sketcher.Constraint("Coincident", 2, 2, 3, 2))
sketch13.addConstraint(Sketcher.Constraint("Coincident", 3, 1, 0, 1))
sketch13.addConstraint(Sketcher.Constraint("Coincident", 4, 2, 5, 1))
sketch13.addConstraint(Sketcher.Constraint("Coincident", 5, 2, 6, 1))
sketch13.addConstraint(Sketcher.Constraint("Coincident", 6, 2, 7, 2))
sketch13.addConstraint(Sketcher.Constraint("Coincident", 7, 1, 4, 1))
sketch13.addConstraint(Sketcher.Constraint("Vertical", 0))
sketch13.addConstraint(Sketcher.Constraint("Horizontal", 1))
sketch13.addConstraint(Sketcher.Constraint("Vertical", 2))
sketch13.addConstraint(Sketcher.Constraint("Vertical", 4))
sketch13.addConstraint(Sketcher.Constraint("Horizontal", 5))
sketch13.addConstraint(Sketcher.Constraint("Vertical", 6))
sketch13.addConstraint(Sketcher.Constraint("Equal", 3, 7))
sketch13.addConstraint(Sketcher.Constraint("Horizontal", 3, 3, 7, 3))
sketch13.addConstraint(Sketcher.Constraint("Horizontal", 2, 2, 3, 1))
sketch13.addConstraint(Sketcher.Constraint("Horizontal", 1, 2, 4, 2))
sketch13.addConstraint(Sketcher.Constraint("Horizontal", 3, 1, 6, 2))
sketch13.addConstraint(Sketcher.Constraint("Horizontal", 6, 2, 7, 1))
sketch13.addConstraint(Sketcher.Constraint("Radius", 3, Q("8 mm")))
sketch13.addConstraint(Sketcher.Constraint("DistanceX", 1, 1, 1, 2, Q("10 mm")))
sketch13.addConstraint(Sketcher.Constraint("DistanceY", -1, 1, 0, 2, Q("4 mm")))
sketch13.addConstraint(Sketcher.Constraint("DistanceY", -1, 1, 3, 3, Q("19.5 mm")))
sketch13.addConstraint(Sketcher.Constraint("DistanceX", 3, 3, 7, 3, Q("24.5 mm")))
sketch13.addConstraint(Sketcher.Constraint("DistanceX", 3, 3, -1, 1, Q("66.75 mm")))
pad9 = body.newObject("PartDesign::Pad", "Pad008")
pad9.Profile = sketch13
pad9.Length = 13

sketch14 = body.newObject("Sketcher::SketchObject", "Sketch013")
sketch14.AttachmentSupport = (doc.getObject("YZ_Plane"), [""])
sketch14.MapMode = "FlatFace"
sketch14.AttachmentOffset = App.Placement(Vector(0, 0, 95.5), App.Rotation())
sketch14.addGeometry(Part.LineSegment(Vector(-37.25, 13.255002, 0), Vector(-37.25, 4, 0)), False)
sketch14.addGeometry(Part.LineSegment(Vector(-37.25, 4, 0), Vector(-47.25, 4, 0)), False)
sketch14.addGeometry(Part.LineSegment(Vector(-47.25, 4, 0), Vector(-47.25, 13.255002, 0)), False)
sketch14.addGeometry(Part.ArcOfCircle(Part.Circle(Vector(-42.25, 19.5, 0), Vector(0, 0, 1), 8), math.radians(-128.682187), math.radians(-51.317813)), False)
sketch14.addGeometry(Part.LineSegment(Vector(-61.75, 13.255002, 0), Vector(-61.75, 4, 0)), False)
sketch14.addGeometry(Part.LineSegment(Vector(-61.75, 4, 0), Vector(-71.75, 4, 0)), False)
sketch14.addGeometry(Part.LineSegment(Vector(-71.75, 4, 0), Vector(-71.75, 13.255002, 0)), False)
sketch14.addGeometry(Part.ArcOfCircle(Part.Circle(Vector(-66.75, 19.5, 0), Vector(0, 0, 1), 8), math.radians(-128.682187), math.radians(-51.317813)), False)
sketch14.addConstraint(Sketcher.Constraint("Coincident", 0, 2, 1, 1))
sketch14.addConstraint(Sketcher.Constraint("Coincident", 1, 2, 2, 1))
sketch14.addConstraint(Sketcher.Constraint("Coincident", 2, 2, 3, 1))
sketch14.addConstraint(Sketcher.Constraint("Coincident", 3, 2, 0, 1))
sketch14.addConstraint(Sketcher.Constraint("Coincident", 4, 2, 5, 1))
sketch14.addConstraint(Sketcher.Constraint("Coincident", 5, 2, 6, 1))
sketch14.addConstraint(Sketcher.Constraint("Coincident", 6, 2, 7, 1))
sketch14.addConstraint(Sketcher.Constraint("Coincident", 7, 2, 4, 1))
sketch14.addConstraint(Sketcher.Constraint("Vertical", 0))
sketch14.addConstraint(Sketcher.Constraint("Horizontal", 1))
sketch14.addConstraint(Sketcher.Constraint("Vertical", 2))
sketch14.addConstraint(Sketcher.Constraint("Vertical", 4))
sketch14.addConstraint(Sketcher.Constraint("Horizontal", 5))
sketch14.addConstraint(Sketcher.Constraint("Vertical", 6))
sketch14.addConstraint(Sketcher.Constraint("Equal", 3, 7))
sketch14.addConstraint(Sketcher.Constraint("Horizontal", 3, 3, 7, 3))
sketch14.addConstraint(Sketcher.Constraint("Horizontal", 2, 2, 3, 2))
sketch14.addConstraint(Sketcher.Constraint("Horizontal", 1, 2, 4, 2))
sketch14.addConstraint(Sketcher.Constraint("Horizontal", 3, 2, 6, 2))
sketch14.addConstraint(Sketcher.Constraint("Horizontal", 6, 2, 7, 2))
sketch14.addConstraint(Sketcher.Constraint("Radius", 3, Q("8 mm")))
sketch14.addConstraint(Sketcher.Constraint("DistanceX", 1, 2, 1, 1, Q("10 mm")))
sketch14.addConstraint(Sketcher.Constraint("DistanceY", -1, 1, 0, 2, Q("4 mm")))
sketch14.addConstraint(Sketcher.Constraint("DistanceY", -1, 1, 3, 3, Q("19.5 mm")))
sketch14.addConstraint(Sketcher.Constraint("DistanceX", 7, 3, 3, 3, Q("24.5 mm")))
sketch14.addConstraint(Sketcher.Constraint("DistanceX", 3, 3, -1, 1, Q("42.25 mm")))
pad10 = body.newObject("PartDesign::Pad", "Pad009")
pad10.Profile = sketch14
pad10.Length = 13
pad10.Reversed = True

sketch15 = body.newObject("Sketcher::SketchObject", "Sketch014")
sketch15.AttachmentSupport = (doc.getObject("XY_Plane"), [""])
sketch15.MapMode = "FlatFace"
sketch15.AttachmentOffset = App.Placement(Vector(0, 0, 4), App.Rotation())
add_polygon(sketch15, [(42.75, -88.474615), (42.75, -76), (32.75, -76), (32.75, -88.474615)])
add_polygon(sketch15, [(67.25, -88.474615), (67.25, -76), (57.25, -76), (57.25, -88.474615)])
sketch15.addConstraint(Sketcher.Constraint("Vertical", 0))
sketch15.addConstraint(Sketcher.Constraint("Horizontal", 1))
sketch15.addConstraint(Sketcher.Constraint("Vertical", 2))
sketch15.addConstraint(Sketcher.Constraint("Horizontal", 3))
sketch15.addConstraint(Sketcher.Constraint("Vertical", 4))
sketch15.addConstraint(Sketcher.Constraint("Horizontal", 5))
sketch15.addConstraint(Sketcher.Constraint("Vertical", 6))
sketch15.addConstraint(Sketcher.Constraint("Horizontal", 7))
sketch15.addConstraint(Sketcher.Constraint("Horizontal", 1, 2, 4, 2))
sketch15.addConstraint(Sketcher.Constraint("Horizontal", 3, 2, 6, 2))
sketch15.addConstraint(Sketcher.Constraint("Equal", 3, 5))
sketch15.addConstraint(Sketcher.Constraint("DistanceX", 1, 2, 1, 1, Q("10 mm")))
sketch15.addConstraint(Sketcher.Constraint("DistanceY", 0, 2, -1, 1, Q("76 mm")))
sketch15.addConstraint(Sketcher.Constraint("DistanceX", 0, 2, 4, 2, Q("24.5 mm")))
sketch15.addConstraint(Sketcher.Constraint("DistanceX", -1, 1, 0, 2, Q("42.75 mm")))
sketch15.addConstraint(Sketcher.Constraint("DistanceY", 0, 1, 0, 2, Q("12.474615 mm")))
pad11 = body.newObject("PartDesign::Pad", "Pad010")
pad11.Profile = sketch15
pad11.Length = 9.25

sketch16 = body.newObject("Sketcher::SketchObject", "Sketch015")
sketch16.AttachmentSupport = (doc.getObject("XZ_Plane"), [""])
sketch16.MapMode = "FlatFace"
sketch16.AttachmentOffset = App.Placement(Vector(0, 0, 76), App.Rotation())
sketch16.addGeometry(Part.LineSegment(Vector(67.243746, 13.25, 0), Vector(57.256254, 13.25, 0)), False)
sketch16.addGeometry(Part.ArcOfCircle(Part.Circle(Vector(62.25, 19.5, 0), Vector(0, 0, 1), 8), math.radians(-128.624833), math.radians(-51.375167)), False)
sketch16.addGeometry(Part.LineSegment(Vector(42.743746, 13.25, 0), Vector(32.756254, 13.25, 0)), False)
sketch16.addGeometry(Part.ArcOfCircle(Part.Circle(Vector(37.75, 19.5, 0), Vector(0, 0, 1), 8), math.radians(-128.624833), math.radians(-51.375167)), False)
sketch16.addConstraint(Sketcher.Constraint("Coincident", 0, 1, 1, 2))
sketch16.addConstraint(Sketcher.Constraint("Coincident", 1, 1, 0, 2))
sketch16.addConstraint(Sketcher.Constraint("Coincident", 2, 1, 3, 2))
sketch16.addConstraint(Sketcher.Constraint("Coincident", 3, 1, 2, 2))
sketch16.addConstraint(Sketcher.Constraint("Horizontal", 0))
sketch16.addConstraint(Sketcher.Constraint("Horizontal", 2))
sketch16.addConstraint(Sketcher.Constraint("Equal", 1, 3))
sketch16.addConstraint(Sketcher.Constraint("Horizontal", 1, 3, 3, 3))
sketch16.addConstraint(Sketcher.Constraint("Horizontal", 1, 1, 2, 1))
sketch16.addConstraint(Sketcher.Constraint("Radius", 1, Q("8 mm")))
sketch16.addConstraint(Sketcher.Constraint("DistanceY", -1, 1, 1, 3, Q("19.5 mm")))
sketch16.addConstraint(Sketcher.Constraint("DistanceX", 3, 3, 1, 3, Q("24.5 mm")))
sketch16.addConstraint(Sketcher.Constraint("DistanceX", -1, 1, 1, 3, Q("62.25 mm")))
sketch16.addConstraint(Sketcher.Constraint("DistanceY", -1, 1, 0, 1, Q("13.25 mm")))
pocket5 = body.newObject("PartDesign::Pocket", "Pocket004")
pocket5.Profile = sketch16
pocket5.Length = 12.474615
pocket5.Reversed = True

sketch17 = body.newObject("Sketcher::SketchObject", "Sketch016")
sketch17.AttachmentSupport = (doc.getObject("XY_Plane"), [""])
sketch17.MapMode = "FlatFace"
sketch17.addGeometry(Part.Circle(Vector(29, -26.05, 0), Vector(0, 0, 1), 3.36), False)
sketch17.addGeometry(Part.Circle(Vector(71, -26.05, 0), Vector(0, 0, 1), 3.36), False)
sketch17.addGeometry(Part.Circle(Vector(71, -3.05, 0), Vector(0, 0, 1), 3.36), False)
sketch17.addGeometry(Part.Circle(Vector(29, -3.05, 0), Vector(0, 0, 1), 3.36), False)
sketch17.addGeometry(Part.Circle(Vector(11.637168, -80.438631, 0), Vector(0, 0, 1), 3.36), False)
sketch17.addGeometry(Part.Circle(Vector(88.362832, -80.438631, 0), Vector(0, 0, 1), 3.36), False)
sketch17.addConstraint(Sketcher.Constraint("Equal", 0, 1))
sketch17.addConstraint(Sketcher.Constraint("Equal", 1, 2))
sketch17.addConstraint(Sketcher.Constraint("Equal", 2, 3))
sketch17.addConstraint(Sketcher.Constraint("Equal", 3, 4))
sketch17.addConstraint(Sketcher.Constraint("Equal", 4, 5))
sketch17.addConstraint(Sketcher.Constraint("Horizontal", 0, 3, 1, 3))
sketch17.addConstraint(Sketcher.Constraint("Horizontal", 2, 3, 3, 3))
sketch17.addConstraint(Sketcher.Constraint("Horizontal", 4, 3, 5, 3))
sketch17.addConstraint(Sketcher.Constraint("Vertical", 1, 3, 2, 3))
sketch17.addConstraint(Sketcher.Constraint("Vertical", 0, 3, 3, 3))
sketch17.addConstraint(Sketcher.Constraint("Diameter", 0, Q("6.72 mm")))
sketch17.addConstraint(Sketcher.Constraint("DistanceX", -1, 1, 0, 3, Q("29 mm")))
sketch17.addConstraint(Sketcher.Constraint("DistanceX", -1, 1, 1, 3, Q("71 mm")))
sketch17.addConstraint(Sketcher.Constraint("DistanceY", 1, 3, 2, 3, Q("23 mm")))
sketch17.addConstraint(Sketcher.Constraint("DistanceY", 0, 3, -1, 1, Q("26.05 mm")))
sketch17.addConstraint(Sketcher.Constraint("DistanceX", -1, 1, 4, 3, Q("11.637168 mm")))
sketch17.addConstraint(Sketcher.Constraint("DistanceY", 4, 3, -1, 1, Q("80.438631 mm")))
sketch17.addConstraint(Sketcher.Constraint("DistanceX", -1, 1, 5, 3, Q("88.362832 mm")))
pocket6 = body.newObject("PartDesign::Pocket", "Pocket005")
pocket6.Profile = sketch17
pocket6.Length = 1.8
pocket6.Reversed = True
pocket6.TaperAngle = -44

doc.recompute()
